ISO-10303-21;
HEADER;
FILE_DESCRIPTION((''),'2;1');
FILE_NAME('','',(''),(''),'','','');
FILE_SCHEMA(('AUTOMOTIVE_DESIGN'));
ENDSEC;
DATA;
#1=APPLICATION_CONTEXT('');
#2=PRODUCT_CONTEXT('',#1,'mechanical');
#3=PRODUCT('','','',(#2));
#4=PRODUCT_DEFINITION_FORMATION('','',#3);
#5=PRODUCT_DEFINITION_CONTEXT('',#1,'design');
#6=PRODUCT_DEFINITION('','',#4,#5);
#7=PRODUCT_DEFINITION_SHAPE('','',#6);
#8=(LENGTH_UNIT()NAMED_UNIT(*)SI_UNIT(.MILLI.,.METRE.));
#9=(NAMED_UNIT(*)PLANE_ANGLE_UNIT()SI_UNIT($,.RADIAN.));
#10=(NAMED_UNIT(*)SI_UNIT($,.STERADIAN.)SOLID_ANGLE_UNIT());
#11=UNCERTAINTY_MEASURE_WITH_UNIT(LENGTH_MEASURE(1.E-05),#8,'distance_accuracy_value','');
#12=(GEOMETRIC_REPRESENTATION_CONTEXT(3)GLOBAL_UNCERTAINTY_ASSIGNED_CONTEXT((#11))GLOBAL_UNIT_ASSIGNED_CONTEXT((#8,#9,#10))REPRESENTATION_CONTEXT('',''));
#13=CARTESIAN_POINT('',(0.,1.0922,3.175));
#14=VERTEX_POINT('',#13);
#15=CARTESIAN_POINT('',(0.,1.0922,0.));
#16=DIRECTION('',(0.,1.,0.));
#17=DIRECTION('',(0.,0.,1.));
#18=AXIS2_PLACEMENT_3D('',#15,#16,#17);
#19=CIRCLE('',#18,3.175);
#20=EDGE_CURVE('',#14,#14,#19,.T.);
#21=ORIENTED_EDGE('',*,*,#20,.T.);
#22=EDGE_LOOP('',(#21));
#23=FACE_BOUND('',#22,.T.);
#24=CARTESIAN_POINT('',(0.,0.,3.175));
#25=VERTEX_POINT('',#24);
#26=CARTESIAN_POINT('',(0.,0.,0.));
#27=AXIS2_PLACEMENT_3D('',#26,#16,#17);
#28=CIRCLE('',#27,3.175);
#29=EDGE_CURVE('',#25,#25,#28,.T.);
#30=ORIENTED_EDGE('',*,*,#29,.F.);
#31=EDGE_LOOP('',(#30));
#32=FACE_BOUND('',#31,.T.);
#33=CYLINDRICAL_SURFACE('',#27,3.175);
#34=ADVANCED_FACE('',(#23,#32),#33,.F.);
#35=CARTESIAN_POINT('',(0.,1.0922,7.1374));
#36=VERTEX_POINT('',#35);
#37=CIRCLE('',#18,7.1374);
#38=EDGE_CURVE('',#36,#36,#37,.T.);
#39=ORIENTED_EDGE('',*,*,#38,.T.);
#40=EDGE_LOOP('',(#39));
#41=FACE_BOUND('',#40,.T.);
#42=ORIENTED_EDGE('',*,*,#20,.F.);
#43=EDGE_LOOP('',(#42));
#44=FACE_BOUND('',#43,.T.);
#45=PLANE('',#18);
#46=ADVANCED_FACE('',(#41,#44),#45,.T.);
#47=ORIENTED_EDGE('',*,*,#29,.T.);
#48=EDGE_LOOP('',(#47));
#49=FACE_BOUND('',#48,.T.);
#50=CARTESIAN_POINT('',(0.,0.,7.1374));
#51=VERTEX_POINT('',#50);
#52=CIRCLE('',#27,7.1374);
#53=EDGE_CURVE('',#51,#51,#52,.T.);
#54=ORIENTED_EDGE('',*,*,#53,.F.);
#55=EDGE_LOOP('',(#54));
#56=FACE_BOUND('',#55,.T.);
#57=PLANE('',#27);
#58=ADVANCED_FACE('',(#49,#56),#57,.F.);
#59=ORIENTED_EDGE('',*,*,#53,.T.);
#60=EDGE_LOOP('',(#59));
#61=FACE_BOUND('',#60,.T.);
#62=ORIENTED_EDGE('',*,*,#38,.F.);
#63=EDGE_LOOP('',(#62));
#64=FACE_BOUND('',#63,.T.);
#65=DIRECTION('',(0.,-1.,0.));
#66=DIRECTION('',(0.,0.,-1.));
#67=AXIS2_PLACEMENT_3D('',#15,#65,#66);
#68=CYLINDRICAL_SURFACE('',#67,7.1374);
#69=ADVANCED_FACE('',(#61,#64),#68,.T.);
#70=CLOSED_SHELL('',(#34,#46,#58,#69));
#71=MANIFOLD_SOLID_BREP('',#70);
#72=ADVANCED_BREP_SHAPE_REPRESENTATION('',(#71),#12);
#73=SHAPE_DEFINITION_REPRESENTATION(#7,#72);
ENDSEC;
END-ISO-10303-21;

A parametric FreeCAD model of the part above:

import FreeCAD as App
import Part
import Sketcher

V = App.Vector
Q = App.Units.Quantity

doc = App.newDocument("Part")
body = doc.addObject("PartDesign::Body", "Body")

# Sketch on XZ plane
sketch1 = body.newObject("Sketcher::SketchObject", "Sketch")
sketch1.AttachmentSupport = (doc.getObject("XZ_Plane"), [""])
sketch1.MapMode = "FlatFace"
sketch1.addGeometry(Part.Circle(V(0, 0, 0), V(0, 0, 1), 7), False)
sketch1.addConstraint(Sketcher.Constraint("Coincident", 0, 3, -1, 1))
sketch1.addConstraint(Sketcher.Constraint("Diameter", 0, Q("0.562 in")))
pad1 = body.newObject("PartDesign::Pad", "Pad")
pad1.Profile = sketch1
pad1.Length = Q("0.043 in")
pad1.Reversed = True

# Sketch on XZ plane
sketch2 = body.newObject("Sketcher::SketchObject", "Sketch001")
sketch2.AttachmentSupport = (doc.getObject("XZ_Plane"), [""])
sketch2.MapMode = "FlatFace"
sketch2.AttachmentOffset = App.Placement(V(0, 0, -0.043 * 25.4), App.Rotation())
sketch2.addGeometry(Part.Circle(V(0, 0, 0), V(0, 0, 1), 3.2), False)
sketch2.addConstraint(Sketcher.Constraint("Coincident", 0, 3, -1, 1))
sketch2.addConstraint(Sketcher.Constraint("Diameter", 0, Q("0.25 in")))
pocket1 = body.newObject("PartDesign::Pocket", "Pocket")
pocket1.Profile = sketch2
pocket1.Type = "ThroughAll"
pocket1.Reversed = True

doc.recompute()
